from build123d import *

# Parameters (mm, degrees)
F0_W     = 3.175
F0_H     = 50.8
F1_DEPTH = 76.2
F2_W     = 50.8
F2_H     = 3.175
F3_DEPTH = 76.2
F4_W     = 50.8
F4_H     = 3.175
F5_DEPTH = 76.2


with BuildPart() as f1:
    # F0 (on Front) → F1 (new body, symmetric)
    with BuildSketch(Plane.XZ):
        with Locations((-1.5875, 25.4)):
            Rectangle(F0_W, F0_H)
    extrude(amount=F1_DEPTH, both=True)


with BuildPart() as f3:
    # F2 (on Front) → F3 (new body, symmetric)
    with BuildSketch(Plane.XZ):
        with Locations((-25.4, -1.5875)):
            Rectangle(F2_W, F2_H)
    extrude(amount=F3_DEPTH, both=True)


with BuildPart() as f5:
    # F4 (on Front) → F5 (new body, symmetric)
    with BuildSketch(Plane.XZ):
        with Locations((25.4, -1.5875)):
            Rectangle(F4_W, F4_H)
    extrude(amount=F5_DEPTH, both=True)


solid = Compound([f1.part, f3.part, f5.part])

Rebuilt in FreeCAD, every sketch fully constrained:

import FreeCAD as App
import Part
import Sketcher

V = App.Vector
Q = App.Units.Quantity


def add_polygon(sketch, points):
    """Adds a closed chain of lines whose ends are joined by coincident constraints."""
    first, n = sketch.GeometryCount, len(points)
    for a, b in zip(points, points[1:] + points[:1]):
        sketch.addGeometry(Part.LineSegment(App.Vector(*a, 0), App.Vector(*b, 0)), False)
    for i in range(n):
        sketch.addConstraint(Sketcher.Constraint("Coincident", first + i, 2, first + (i + 1) % n, 1))

doc = App.newDocument("Part")
body = doc.addObject("PartDesign::Body", "Body")

# Sketch on XZ plane
sketch1 = body.newObject("Sketcher::SketchObject", "Sketch")
sketch1.AttachmentSupport = (doc.getObject("XZ_Plane"), [""])
sketch1.MapMode = "FlatFace"
add_polygon(sketch1, [(-3.2, 50.8), (-3.2, 0), (0, 0), (0, 50.8)])  # lines 0-3
sketch1.addConstraint([
    Sketcher.Constraint("Vertical", 0),
    Sketcher.Constraint("Horizontal", 1),
    Sketcher.Constraint("Vertical", 2),
    Sketcher.Constraint("Horizontal", 3),
    Sketcher.Constraint("Coincident", 1, 2, -1, 1),
    Sketcher.Constraint("DistanceY", 0, 2, 0, 1, Q("2 in")),
    Sketcher.Constraint("DistanceX", 1, 1, 1, 2, Q("0.125 in")),
])
pad1 = body.newObject("PartDesign::Pad", "Pad")
pad1.Profile = sketch1
pad1.Length = Q("6 in")
pad1.Midplane = True
body2 = doc.addObject("PartDesign::Body", "Body001")

# Sketch on XZ plane
sketch2 = body2.newObject("Sketcher::SketchObject", "Sketch001")
sketch2.AttachmentSupport = (doc.getObject("XZ_Plane001"), [""])
sketch2.MapMode = "FlatFace"
add_polygon(sketch2, [(-50.8, 0), (-50.8, -3.2), (0, -3.2), (0, 0)])  # lines 0-3
sketch2.addConstraint([
    Sketcher.Constraint("Vertical", 0),
    Sketcher.Constraint("Horizontal", 1),
    Sketcher.Constraint("Vertical", 2),
    Sketcher.Constraint("Horizontal", 3),
    Sketcher.Constraint("Coincident", 2, 2, -1, 1),
    Sketcher.Constraint("DistanceX", 1, 1, 1, 2, Q("2 in")),
    Sketcher.Constraint("DistanceY", 0, 2, 0, 1, Q("0.125 in")),
])
pad2 = body2.newObject("PartDesign::Pad", "Pad001")
pad2.Profile = sketch2
pad2.Length = Q("6 in")
pad2.Midplane = True
body3 = doc.addObject("PartDesign::Body", "Body002")

# Sketch on XZ plane
sketch3 = body3.newObject("Sketcher::SketchObject", "Sketch002")
sketch3.AttachmentSupport = (doc.getObject("XZ_Plane002"), [""])
sketch3.MapMode = "FlatFace"
add_polygon(sketch3, [(0, 0), (0, -3.2), (50.8, -3.2), (50.8, 0)])  # lines 0-3
sketch3.addConstraint([
    Sketcher.Constraint("Vertical", 0),
    Sketcher.Constraint("Horizontal", 1),
    Sketcher.Constraint("Vertical", 2),
    Sketcher.Constraint("Horizontal", 3),
    Sketcher.Constraint("Coincident", 3, 2, -1, 1),
    Sketcher.Constraint("DistanceX", 1, 1, 1, 2, Q("2 in")),
    Sketcher.Constraint("DistanceY", 0, 2, 0, 1, Q("0.125 in")),
])
pad3 = body3.newObject("PartDesign::Pad", "Pad002")
pad3.Profile = sketch3
pad3.Length = Q("6 in")
pad3.Midplane = True

doc.recompute()
